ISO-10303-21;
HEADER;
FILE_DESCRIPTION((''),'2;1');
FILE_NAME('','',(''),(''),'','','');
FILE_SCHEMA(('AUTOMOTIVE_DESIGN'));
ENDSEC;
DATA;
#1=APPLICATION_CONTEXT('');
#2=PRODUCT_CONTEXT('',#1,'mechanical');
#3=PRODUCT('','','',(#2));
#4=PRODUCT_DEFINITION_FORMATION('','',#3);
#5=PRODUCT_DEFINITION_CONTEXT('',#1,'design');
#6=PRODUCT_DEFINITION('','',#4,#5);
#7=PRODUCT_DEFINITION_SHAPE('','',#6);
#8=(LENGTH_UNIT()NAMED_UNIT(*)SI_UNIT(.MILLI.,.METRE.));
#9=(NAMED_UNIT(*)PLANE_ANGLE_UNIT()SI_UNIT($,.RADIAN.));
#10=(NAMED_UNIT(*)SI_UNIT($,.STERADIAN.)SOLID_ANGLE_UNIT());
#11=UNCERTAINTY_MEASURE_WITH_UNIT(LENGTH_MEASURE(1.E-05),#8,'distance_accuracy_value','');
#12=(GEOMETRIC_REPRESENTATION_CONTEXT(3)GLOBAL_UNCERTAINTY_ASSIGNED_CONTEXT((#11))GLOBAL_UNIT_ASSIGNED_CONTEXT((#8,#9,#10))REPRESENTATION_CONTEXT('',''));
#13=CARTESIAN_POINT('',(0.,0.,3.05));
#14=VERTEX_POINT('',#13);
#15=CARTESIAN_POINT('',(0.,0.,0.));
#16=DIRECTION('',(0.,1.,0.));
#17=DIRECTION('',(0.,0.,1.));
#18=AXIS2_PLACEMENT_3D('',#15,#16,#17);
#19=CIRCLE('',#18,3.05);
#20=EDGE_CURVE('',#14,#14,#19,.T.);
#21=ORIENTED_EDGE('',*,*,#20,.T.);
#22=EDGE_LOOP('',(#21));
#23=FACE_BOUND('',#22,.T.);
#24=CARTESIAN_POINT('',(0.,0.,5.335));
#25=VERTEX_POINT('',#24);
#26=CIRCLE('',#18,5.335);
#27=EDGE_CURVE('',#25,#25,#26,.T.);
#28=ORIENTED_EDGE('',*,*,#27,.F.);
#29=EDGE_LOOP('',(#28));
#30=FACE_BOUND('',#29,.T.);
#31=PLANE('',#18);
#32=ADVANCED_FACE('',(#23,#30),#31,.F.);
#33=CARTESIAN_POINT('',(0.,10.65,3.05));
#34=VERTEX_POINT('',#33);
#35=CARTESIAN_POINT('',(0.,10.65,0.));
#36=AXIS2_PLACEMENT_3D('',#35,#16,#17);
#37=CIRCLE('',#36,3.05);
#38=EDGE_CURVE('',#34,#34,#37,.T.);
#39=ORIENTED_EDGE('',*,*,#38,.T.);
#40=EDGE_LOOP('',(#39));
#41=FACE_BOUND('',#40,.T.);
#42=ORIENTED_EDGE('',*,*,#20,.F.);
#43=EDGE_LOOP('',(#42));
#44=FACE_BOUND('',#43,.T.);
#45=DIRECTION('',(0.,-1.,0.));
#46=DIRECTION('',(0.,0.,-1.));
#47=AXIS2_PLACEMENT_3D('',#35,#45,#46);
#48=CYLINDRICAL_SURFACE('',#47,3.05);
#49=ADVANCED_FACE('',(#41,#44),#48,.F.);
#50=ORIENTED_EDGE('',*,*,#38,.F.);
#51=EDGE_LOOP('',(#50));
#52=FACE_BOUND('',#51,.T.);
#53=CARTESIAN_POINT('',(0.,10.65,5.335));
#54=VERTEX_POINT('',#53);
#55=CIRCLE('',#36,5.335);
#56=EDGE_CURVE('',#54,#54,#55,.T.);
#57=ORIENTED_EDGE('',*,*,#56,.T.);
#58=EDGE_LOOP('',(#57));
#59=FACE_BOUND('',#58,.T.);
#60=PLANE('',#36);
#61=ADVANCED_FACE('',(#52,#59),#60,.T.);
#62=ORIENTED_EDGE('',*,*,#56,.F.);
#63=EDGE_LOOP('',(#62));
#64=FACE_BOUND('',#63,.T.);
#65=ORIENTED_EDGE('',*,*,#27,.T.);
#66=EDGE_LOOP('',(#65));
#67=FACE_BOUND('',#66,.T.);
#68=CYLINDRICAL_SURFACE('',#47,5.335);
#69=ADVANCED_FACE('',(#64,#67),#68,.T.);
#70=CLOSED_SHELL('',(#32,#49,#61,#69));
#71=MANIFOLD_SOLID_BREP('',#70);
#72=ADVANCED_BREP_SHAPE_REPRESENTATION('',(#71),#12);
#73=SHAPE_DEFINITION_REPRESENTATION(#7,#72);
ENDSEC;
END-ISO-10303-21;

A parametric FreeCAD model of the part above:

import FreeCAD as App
import Part
import Sketcher

doc = App.newDocument("Part")
params = doc.addObject("Spreadsheet::Sheet", "Params")
for row, (alias, value) in enumerate([
    ("sketch1_diameter", "6.1 mm"),
    ("sketch1_diameter2", "10.67 mm"),
    ("pad1_length", "10.65 mm"),
], start=1):
    params.set(f"A{row}", alias)
    params.set(f"B{row}", "=" + value)
    params.setAlias(f"B{row}", alias)

body = doc.addObject("PartDesign::Body", "Body")

# Sketch on XZ plane
sketch1 = body.newObject("Sketcher::SketchObject", "Sketch")
sketch1.AttachmentSupport = (doc.getObject("XZ_Plane"), [""])
sketch1.MapMode = "FlatFace"
sketch1.addGeometry([
    Part.Circle(App.Vector(0, 0, 0), App.Vector(0, 0, 1), 5.3),
    Part.Circle(App.Vector(0, 0, 0), App.Vector(0, 0, 1), 3),
], False)
sketch1.addConstraint([
    Sketcher.Constraint("Coincident", 0, 3, -1, 1),
    Sketcher.Constraint("Coincident", 1, 3, -1, 1),
    Sketcher.Constraint("Diameter", 1, 6.1),
    Sketcher.Constraint("Diameter", 0, 10.67),
])
sketch1.setExpression("Constraints[2]", "Params.sketch1_diameter")
sketch1.setExpression("Constraints[3]", "Params.sketch1_diameter2")
pad1 = body.newObject("PartDesign::Pad", "Pad")
pad1.Profile = sketch1
pad1.setExpression("Length", "Params.pad1_length")
pad1.Reversed = True

doc.recompute()
